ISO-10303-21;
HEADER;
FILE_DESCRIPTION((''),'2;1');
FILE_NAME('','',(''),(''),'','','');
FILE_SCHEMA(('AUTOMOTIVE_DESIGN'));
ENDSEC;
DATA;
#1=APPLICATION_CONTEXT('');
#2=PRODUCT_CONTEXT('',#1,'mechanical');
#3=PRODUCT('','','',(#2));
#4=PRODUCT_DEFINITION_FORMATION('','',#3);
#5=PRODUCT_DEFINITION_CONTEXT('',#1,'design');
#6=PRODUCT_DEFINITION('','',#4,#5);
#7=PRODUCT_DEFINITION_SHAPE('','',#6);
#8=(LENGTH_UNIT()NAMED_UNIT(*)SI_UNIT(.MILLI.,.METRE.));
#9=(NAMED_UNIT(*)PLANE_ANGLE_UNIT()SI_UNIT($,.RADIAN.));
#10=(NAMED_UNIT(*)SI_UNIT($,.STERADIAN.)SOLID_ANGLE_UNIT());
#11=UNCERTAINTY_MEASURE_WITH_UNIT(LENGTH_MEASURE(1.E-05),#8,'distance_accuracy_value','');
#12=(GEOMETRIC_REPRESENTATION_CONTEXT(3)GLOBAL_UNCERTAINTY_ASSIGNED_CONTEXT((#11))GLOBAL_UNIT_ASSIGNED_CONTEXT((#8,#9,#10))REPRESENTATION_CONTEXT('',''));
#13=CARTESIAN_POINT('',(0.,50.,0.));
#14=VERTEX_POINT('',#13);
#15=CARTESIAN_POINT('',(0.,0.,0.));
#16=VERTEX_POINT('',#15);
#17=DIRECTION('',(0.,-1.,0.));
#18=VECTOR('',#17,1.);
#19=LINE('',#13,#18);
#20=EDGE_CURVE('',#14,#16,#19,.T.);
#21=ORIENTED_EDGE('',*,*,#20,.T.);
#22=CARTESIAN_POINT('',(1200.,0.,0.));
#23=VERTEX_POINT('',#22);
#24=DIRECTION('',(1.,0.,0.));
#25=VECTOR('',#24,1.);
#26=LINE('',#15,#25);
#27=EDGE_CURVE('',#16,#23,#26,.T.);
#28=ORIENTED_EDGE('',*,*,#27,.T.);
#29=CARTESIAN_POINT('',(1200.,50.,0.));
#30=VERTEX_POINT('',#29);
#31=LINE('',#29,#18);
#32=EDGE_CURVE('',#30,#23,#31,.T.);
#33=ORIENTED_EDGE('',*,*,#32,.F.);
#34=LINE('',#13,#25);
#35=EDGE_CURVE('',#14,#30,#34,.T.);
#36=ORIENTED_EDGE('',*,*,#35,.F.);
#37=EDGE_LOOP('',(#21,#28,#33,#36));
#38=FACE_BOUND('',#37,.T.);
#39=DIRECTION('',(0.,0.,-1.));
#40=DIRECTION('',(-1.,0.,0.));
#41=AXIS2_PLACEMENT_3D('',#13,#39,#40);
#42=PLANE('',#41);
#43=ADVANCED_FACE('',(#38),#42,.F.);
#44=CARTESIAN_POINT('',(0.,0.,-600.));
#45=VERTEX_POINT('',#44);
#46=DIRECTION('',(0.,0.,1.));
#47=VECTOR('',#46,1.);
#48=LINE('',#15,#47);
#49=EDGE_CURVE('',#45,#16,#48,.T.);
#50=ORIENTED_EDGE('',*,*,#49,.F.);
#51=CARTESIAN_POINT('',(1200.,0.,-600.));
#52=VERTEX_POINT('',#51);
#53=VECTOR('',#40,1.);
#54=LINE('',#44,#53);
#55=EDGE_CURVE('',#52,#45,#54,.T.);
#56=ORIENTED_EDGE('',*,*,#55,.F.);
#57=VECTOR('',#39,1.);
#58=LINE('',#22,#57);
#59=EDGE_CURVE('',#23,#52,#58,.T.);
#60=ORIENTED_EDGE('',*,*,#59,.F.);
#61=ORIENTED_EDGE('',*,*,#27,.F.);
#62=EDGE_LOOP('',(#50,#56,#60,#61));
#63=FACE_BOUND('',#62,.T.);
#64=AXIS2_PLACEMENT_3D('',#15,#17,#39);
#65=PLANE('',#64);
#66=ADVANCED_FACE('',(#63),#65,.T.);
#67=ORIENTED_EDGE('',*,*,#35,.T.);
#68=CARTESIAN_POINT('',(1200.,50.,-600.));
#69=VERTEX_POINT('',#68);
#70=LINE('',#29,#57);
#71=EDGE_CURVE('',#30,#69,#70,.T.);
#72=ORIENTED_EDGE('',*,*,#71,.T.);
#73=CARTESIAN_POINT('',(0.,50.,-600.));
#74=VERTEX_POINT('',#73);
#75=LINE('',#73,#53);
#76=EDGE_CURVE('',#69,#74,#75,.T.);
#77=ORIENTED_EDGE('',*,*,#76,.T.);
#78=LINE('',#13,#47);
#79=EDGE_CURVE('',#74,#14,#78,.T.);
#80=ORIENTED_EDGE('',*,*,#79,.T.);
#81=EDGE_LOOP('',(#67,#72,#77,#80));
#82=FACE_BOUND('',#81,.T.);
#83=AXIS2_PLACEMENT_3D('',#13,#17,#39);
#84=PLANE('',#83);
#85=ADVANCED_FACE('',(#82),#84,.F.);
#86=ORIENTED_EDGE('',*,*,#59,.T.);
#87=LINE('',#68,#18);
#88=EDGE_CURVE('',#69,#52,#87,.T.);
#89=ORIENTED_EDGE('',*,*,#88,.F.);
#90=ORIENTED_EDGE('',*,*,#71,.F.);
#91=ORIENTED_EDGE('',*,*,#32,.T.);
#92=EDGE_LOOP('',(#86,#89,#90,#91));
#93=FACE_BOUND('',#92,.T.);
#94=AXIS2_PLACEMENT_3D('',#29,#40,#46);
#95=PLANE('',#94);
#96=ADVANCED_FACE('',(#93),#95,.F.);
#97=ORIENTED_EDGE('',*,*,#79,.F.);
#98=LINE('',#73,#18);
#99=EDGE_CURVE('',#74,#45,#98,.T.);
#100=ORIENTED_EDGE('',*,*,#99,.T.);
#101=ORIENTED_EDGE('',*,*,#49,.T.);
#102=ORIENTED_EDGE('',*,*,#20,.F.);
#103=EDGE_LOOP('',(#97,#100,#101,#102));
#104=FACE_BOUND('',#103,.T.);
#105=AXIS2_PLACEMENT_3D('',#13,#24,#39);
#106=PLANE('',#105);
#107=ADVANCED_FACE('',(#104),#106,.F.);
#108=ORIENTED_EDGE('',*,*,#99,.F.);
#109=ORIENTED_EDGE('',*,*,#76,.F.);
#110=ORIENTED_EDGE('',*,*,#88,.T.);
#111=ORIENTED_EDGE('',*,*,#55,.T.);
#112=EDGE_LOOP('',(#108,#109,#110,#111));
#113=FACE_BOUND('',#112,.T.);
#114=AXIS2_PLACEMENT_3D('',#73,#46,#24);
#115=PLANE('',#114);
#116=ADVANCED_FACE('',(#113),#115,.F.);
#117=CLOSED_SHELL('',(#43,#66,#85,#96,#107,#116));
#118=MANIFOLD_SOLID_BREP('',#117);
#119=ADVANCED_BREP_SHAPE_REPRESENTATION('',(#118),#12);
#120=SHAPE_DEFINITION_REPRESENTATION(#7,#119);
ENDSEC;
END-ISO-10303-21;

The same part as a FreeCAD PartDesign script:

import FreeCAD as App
import Part
import Sketcher
from FreeCAD import Vector
Q = App.Units.Quantity


def add_polygon(sketch, points):
    """Adds a closed chain of lines whose ends are joined by coincident constraints."""
    first, n = sketch.GeometryCount, len(points)
    for a, b in zip(points, points[1:] + points[:1]):
        sketch.addGeometry(Part.LineSegment(App.Vector(*a, 0), App.Vector(*b, 0)), False)
    for i in range(n):
        sketch.addConstraint(Sketcher.Constraint("Coincident", first + i, 2, first + (i + 1) % n, 1))

doc = App.newDocument("Part")
params = doc.addObject("Spreadsheet::Sheet", "Params")
for row, (alias, value) in enumerate([
    ("sketch1_width", "1200 mm"),
    ("sketch1_height", "600 mm"),
    ("pad1_length", "50 mm"),
], start=1):
    params.set(f"A{row}", alias)
    params.set(f"B{row}", "=" + value)
    params.setAlias(f"B{row}", alias)

body = doc.addObject("PartDesign::Body", "Body")

# Sketch on XZ plane
sketch1 = body.newObject("Sketcher::SketchObject", "Sketch")
sketch1.AttachmentSupport = (doc.getObject("XZ_Plane"), [""])
sketch1.MapMode = "FlatFace"
add_polygon(sketch1, [(0, -600), (0, 0), (1200, 0), (1200, -600)])  # lines 0-3
sketch1.addConstraint(Sketcher.Constraint("Vertical", 0))
sketch1.addConstraint(Sketcher.Constraint("Horizontal", 1))
sketch1.addConstraint(Sketcher.Constraint("Vertical", 2))
sketch1.addConstraint(Sketcher.Constraint("Horizontal", 3))
sketch1.addConstraint(Sketcher.Constraint("Coincident", 0, 2, -1, 1))
sketch1.addConstraint(Sketcher.Constraint("DistanceX", 1, 1, 1, 2, Q("1200 mm")))
sketch1.addConstraint(Sketcher.Constraint("DistanceY", 0, 1, 0, 2, Q("600 mm")))
sketch1.setExpression("Constraints[9]", "Params.sketch1_width")
sketch1.setExpression("Constraints[10]", "Params.sketch1_height")
pad1 = body.newObject("PartDesign::Pad", "Pad")
pad1.Profile = sketch1
pad1.setExpression("Length", "Params.pad1_length")
pad1.Reversed = True

doc.recompute()
